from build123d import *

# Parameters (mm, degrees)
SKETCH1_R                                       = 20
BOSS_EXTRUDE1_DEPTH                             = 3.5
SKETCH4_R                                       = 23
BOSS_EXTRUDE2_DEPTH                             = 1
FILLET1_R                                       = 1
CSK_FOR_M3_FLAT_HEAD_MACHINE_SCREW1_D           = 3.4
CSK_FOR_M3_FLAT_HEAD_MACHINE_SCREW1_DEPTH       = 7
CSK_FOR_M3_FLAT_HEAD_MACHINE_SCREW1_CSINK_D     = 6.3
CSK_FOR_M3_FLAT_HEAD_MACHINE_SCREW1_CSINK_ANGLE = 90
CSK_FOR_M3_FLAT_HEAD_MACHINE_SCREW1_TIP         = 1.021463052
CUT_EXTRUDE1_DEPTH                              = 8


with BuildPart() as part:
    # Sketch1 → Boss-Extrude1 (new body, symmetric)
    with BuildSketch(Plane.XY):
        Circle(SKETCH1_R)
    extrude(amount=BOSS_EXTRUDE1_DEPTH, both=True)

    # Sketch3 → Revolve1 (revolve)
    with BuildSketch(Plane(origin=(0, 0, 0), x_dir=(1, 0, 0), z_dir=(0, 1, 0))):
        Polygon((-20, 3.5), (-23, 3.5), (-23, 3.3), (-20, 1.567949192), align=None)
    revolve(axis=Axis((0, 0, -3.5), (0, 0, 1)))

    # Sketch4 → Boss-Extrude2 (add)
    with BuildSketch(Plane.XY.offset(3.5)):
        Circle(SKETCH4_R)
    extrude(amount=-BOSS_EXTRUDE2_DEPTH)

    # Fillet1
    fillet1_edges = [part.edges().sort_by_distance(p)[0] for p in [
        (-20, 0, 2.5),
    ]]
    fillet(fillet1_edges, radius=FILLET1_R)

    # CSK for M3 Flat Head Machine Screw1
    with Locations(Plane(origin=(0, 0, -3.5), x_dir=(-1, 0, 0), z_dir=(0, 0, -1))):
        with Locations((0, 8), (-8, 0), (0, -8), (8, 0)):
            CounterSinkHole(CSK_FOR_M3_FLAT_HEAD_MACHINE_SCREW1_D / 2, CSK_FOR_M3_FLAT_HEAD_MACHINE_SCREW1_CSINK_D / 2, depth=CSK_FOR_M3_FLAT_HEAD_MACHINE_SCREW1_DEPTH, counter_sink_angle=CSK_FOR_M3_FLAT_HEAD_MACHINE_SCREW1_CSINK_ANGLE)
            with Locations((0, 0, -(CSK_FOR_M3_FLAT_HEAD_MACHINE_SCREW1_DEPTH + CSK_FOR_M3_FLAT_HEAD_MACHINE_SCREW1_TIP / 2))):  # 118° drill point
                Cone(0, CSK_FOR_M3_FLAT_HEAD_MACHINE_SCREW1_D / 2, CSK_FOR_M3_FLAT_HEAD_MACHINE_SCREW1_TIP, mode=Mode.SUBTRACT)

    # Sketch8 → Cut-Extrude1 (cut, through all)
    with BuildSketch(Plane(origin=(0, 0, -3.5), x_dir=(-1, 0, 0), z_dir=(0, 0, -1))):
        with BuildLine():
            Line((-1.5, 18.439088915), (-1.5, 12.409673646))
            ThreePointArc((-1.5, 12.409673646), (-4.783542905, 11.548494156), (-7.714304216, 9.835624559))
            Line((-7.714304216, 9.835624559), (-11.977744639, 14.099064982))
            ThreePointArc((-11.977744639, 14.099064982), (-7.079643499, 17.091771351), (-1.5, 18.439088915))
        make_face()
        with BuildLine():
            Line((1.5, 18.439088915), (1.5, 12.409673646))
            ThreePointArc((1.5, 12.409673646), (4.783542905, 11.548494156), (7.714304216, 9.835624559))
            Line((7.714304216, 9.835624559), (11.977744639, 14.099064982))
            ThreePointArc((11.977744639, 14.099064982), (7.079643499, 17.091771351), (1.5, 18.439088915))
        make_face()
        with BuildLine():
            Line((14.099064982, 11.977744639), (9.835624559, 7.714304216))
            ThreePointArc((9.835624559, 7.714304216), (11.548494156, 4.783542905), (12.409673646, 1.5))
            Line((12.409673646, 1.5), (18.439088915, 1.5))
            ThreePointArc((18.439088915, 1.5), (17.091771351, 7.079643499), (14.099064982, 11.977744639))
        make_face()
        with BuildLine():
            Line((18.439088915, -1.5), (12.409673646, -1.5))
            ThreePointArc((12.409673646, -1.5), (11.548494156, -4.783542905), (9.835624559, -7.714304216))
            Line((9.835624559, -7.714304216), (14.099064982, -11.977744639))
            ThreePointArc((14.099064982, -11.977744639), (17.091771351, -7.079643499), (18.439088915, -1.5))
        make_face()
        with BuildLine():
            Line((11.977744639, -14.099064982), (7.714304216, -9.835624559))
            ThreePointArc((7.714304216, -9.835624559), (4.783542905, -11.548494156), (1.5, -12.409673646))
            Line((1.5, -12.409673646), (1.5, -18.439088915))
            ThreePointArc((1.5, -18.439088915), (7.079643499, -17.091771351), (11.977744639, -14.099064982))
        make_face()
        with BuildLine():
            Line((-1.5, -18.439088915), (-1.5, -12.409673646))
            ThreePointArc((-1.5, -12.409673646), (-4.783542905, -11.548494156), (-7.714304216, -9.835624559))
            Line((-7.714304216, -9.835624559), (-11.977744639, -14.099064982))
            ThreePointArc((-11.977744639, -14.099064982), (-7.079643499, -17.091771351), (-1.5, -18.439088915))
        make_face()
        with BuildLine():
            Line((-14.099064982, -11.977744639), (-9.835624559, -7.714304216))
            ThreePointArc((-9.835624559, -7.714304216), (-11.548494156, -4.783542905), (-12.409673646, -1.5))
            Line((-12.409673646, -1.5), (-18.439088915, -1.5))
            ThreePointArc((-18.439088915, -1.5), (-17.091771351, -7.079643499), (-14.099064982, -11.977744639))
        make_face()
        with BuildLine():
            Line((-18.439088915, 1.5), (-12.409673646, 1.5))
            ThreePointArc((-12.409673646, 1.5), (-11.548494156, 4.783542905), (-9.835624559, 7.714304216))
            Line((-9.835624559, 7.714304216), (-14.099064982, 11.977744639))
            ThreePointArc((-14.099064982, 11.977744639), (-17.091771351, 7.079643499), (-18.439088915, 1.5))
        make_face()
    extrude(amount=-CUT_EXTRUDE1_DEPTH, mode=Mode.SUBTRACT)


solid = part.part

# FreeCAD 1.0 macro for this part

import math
import FreeCAD as App
import Part
import Sketcher
from FreeCAD import Vector
Q = App.Units.Quantity


def edges_at(feature, points):
    """Names of the edges that pass closest to the given points."""
    edges = feature.Shape.Edges
    near = lambda p: min(range(len(edges)), key=lambda i: edges[i].distToShape(Part.Vertex(*p))[0])
    return sorted({f"Edge{near(p) + 1}" for p in points})


def add_polygon(sketch, points):
    """Adds a closed chain of lines whose ends are joined by coincident constraints."""
    first, n = sketch.GeometryCount, len(points)
    for a, b in zip(points, points[1:] + points[:1]):
        sketch.addGeometry(Part.LineSegment(App.Vector(*a, 0), App.Vector(*b, 0)), False)
    for i in range(n):
        sketch.addConstraint(Sketcher.Constraint("Coincident", first + i, 2, first + (i + 1) % n, 1))

doc = App.newDocument("Part")
body = doc.addObject("PartDesign::Body", "Body")

# Sketch on XY plane
sketch1 = doc.addObject("Sketcher::SketchObject", "Sketch")
body.addObject(sketch1)
sketch1.AttachmentSupport = (doc.XY_Plane, [""])
sketch1.MapMode = "FlatFace"
sketch1.addGeometry(Part.Circle(Vector(0, 0, 0), Vector(0, 0, 1), 20), False)
sketch1.addConstraint(Sketcher.Constraint("Coincident", 0, 3, -1, 1))
sketch1.addConstraint(Sketcher.Constraint("Diameter", 0, Q("40 mm")))
pad1 = doc.addObject("PartDesign::Pad", "Pad")
body.addObject(pad1)
pad1.Profile = sketch1
pad1.Length = 7
pad1.Midplane = True

# Sketch on XZ plane
sketch2 = doc.addObject("Sketcher::SketchObject", "Sketch001")
body.addObject(sketch2)
sketch2.AttachmentSupport = (doc.XZ_Plane, [""])
sketch2.MapMode = "FlatFace"
add_polygon(sketch2, [(-20, -3.5), (-23, -3.5), (-23, -3.3), (-20, -1.567949)])  # lines 0-3
sketch2.addConstraint(Sketcher.Constraint("Horizontal", 0))
sketch2.addConstraint(Sketcher.Constraint("Vertical", 1))
sketch2.addConstraint(Sketcher.Constraint("Vertical", 3))
sketch2.addConstraint(Sketcher.Constraint("DistanceX", 0, 2, 0, 1, Q("3 mm")))
sketch2.addConstraint(Sketcher.Constraint("Angle", 2, Q("30 deg")))
sketch2.addConstraint(Sketcher.Constraint("DistanceY", 1, 1, 1, 2, Q("0.2 mm")))
sketch2.addConstraint(Sketcher.Constraint("DistanceX", 0, 2, -1, 1, Q("23 mm")))
sketch2.addConstraint(Sketcher.Constraint("DistanceY", 0, 2, -1, 1, Q("3.5 mm")))
revolution = doc.addObject("PartDesign::Revolution", "Revolution")
body.addObject(revolution)
revolution.Profile = sketch2
revolution.ReferenceAxis = (sketch2, ["V_Axis"])
revolution.Angle = 360

# Sketch on XY plane
sketch3 = doc.addObject("Sketcher::SketchObject", "Sketch002")
body.addObject(sketch3)
sketch3.AttachmentSupport = (doc.XY_Plane, [""])
sketch3.MapMode = "FlatFace"
sketch3.AttachmentOffset = App.Placement(Vector(0, 0, 3.5), App.Rotation())
sketch3.addGeometry(Part.Circle(Vector(0, 0, 0), Vector(0, 0, 1), 23), False)
sketch3.addConstraint(Sketcher.Constraint("Coincident", 0, 3, -1, 1))
sketch3.addConstraint(Sketcher.Constraint("Diameter", 0, Q("46 mm")))
pad2 = doc.addObject("PartDesign::Pad", "Pad001")
body.addObject(pad2)
pad2.Profile = sketch3
pad2.Length = 1
pad2.Reversed = True
doc.recompute()

fillet = doc.addObject("PartDesign::Fillet", "Fillet")
body.addObject(fillet)
fillet.Base = (pad2, edges_at(pad2, [(-20, 0, 2.5)]))
fillet.Radius = 1

# Sketch on XY plane
sketch4 = doc.addObject("Sketcher::SketchObject", "Sketch003")
body.addObject(sketch4)
sketch4.AttachmentSupport = (doc.XY_Plane, [""])
sketch4.MapMode = "FlatFace"
sketch4.AttachmentOffset = App.Placement(Vector(0, 0, -3.5), App.Rotation())
sketch4.addGeometry(Part.Circle(Vector(0, 8, 0), Vector(0, 0, 1), 1.7), False)
sketch4.addGeometry(Part.Circle(Vector(8, 0, 0), Vector(0, 0, 1), 1.7), False)
sketch4.addGeometry(Part.Circle(Vector(0, -8, 0), Vector(0, 0, 1), 1.7), False)
sketch4.addGeometry(Part.Circle(Vector(-8, 0, 0), Vector(0, 0, 1), 1.7), False)
sketch4.addConstraint(Sketcher.Constraint("Equal", 0, 1))
sketch4.addConstraint(Sketcher.Constraint("Equal", 1, 2))
sketch4.addConstraint(Sketcher.Constraint("Equal", 2, 3))
sketch4.addConstraint(Sketcher.Constraint("Symmetric", 0, 3, 2, 3, -1, 1))
sketch4.addConstraint(Sketcher.Constraint("Symmetric", 1, 3, 3, 3, -1, 1))
sketch4.addConstraint(Sketcher.Constraint("PointOnObject", 0, 3, -2))
sketch4.addConstraint(Sketcher.Constraint("PointOnObject", 1, 3, -1))
sketch4.addConstraint(Sketcher.Constraint("Diameter", 0, Q("3.4 mm")))
sketch4.addConstraint(Sketcher.Constraint("DistanceY", -1, 1, 0, 3, Q("8 mm")))
sketch4.addConstraint(Sketcher.Constraint("DistanceX", -1, 1, 1, 3, Q("8 mm")))
doc.recompute()
hole = doc.addObject("PartDesign::Hole", "Hole")
body.addObject(hole)
hole.Profile = sketch4
hole.ThreadType = "None"
hole.Diameter = 3.4
hole.DepthType = "Dimension"
hole.Depth = 7
hole.DrillPoint = "Angled"
hole.DrillPointAngle = 118
hole.HoleCutType = "Countersink"
hole.HoleCutDiameter = 6.3
hole.HoleCutCountersinkAngle = 90
hole.Reversed = True

# Sketch on XY plane
sketch5 = doc.addObject("Sketcher::SketchObject", "Sketch004")
body.addObject(sketch5)
sketch5.AttachmentSupport = (doc.XY_Plane, [""])
sketch5.MapMode = "FlatFace"
sketch5.AttachmentOffset = App.Placement(Vector(0, 0, -3.5), App.Rotation())
sketch5.addGeometry(Part.LineSegment(Vector(1.5, 12.409674, 0), Vector(1.5, 18.439089, 0)), False)
sketch5.addGeometry(Part.ArcOfCircle(Part.Circle(Vector(0, 0, 0), Vector(0, 0, 1), 18.5), math.radians(49.650709), math.radians(85.349291)), False)
sketch5.addGeometry(Part.LineSegment(Vector(11.977745, 14.099065, 0), Vector(7.714304, 9.835625, 0)), False)
sketch5.addGeometry(Part.ArcOfCircle(Part.Circle(Vector(0, 0, 0), Vector(0, 0, 1), 12.5), math.radians(51.892103), math.radians(83.107897)), False)
sketch5.addGeometry(Part.LineSegment(Vector(-1.5, 18.439089, 0), Vector(-1.5, 12.409674, 0)), False)
sketch5.addGeometry(Part.ArcOfCircle(Part.Circle(Vector(0, 0, 0), Vector(0, 0, 1), 12.5), math.radians(96.892103), math.radians(128.107897)), False)
sketch5.addGeometry(Part.LineSegment(Vector(-7.714304, 9.835625, 0), Vector(-11.977745, 14.099065, 0)), False)
sketch5.addGeometry(Part.ArcOfCircle(Part.Circle(Vector(0, 0, 0), Vector(0, 0, 1), 18.5), math.radians(94.650709), math.radians(130.349291)), False)
sketch5.addGeometry(Part.LineSegment(Vector(-14.099065, 11.977745, 0), Vector(-9.835625, 7.714304, 0)), False)
sketch5.addGeometry(Part.ArcOfCircle(Part.Circle(Vector(0, 0, 0), Vector(0, 0, 1), 12.5), math.radians(141.892103), math.radians(173.107897)), False)
sketch5.addGeometry(Part.LineSegment(Vector(-12.409674, 1.5, 0), Vector(-18.439089, 1.5, 0)), False)
sketch5.addGeometry(Part.ArcOfCircle(Part.Circle(Vector(0, 0, 0), Vector(0, 0, 1), 18.5), math.radians(139.650709), math.radians(175.349291)), False)
sketch5.addGeometry(Part.LineSegment(Vector(-18.439089, -1.5, 0), Vector(-12.409674, -1.5, 0)), False)
sketch5.addGeometry(Part.ArcOfCircle(Part.Circle(Vector(0, 0, 0), Vector(0, 0, 1), 12.5), math.radians(-173.107897), math.radians(-141.892103)), False)
sketch5.addGeometry(Part.LineSegment(Vector(-9.835625, -7.714304, 0), Vector(-14.099065, -11.977745, 0)), False)
sketch5.addGeometry(Part.ArcOfCircle(Part.Circle(Vector(0, 0, 0), Vector(0, 0, 1), 18.5), math.radians(-175.349291), math.radians(-139.650709)), False)
sketch5.addGeometry(Part.LineSegment(Vector(-11.977745, -14.099065, 0), Vector(-7.714304, -9.835625, 0)), False)
sketch5.addGeometry(Part.ArcOfCircle(Part.Circle(Vector(0, 0, 0), Vector(0, 0, 1), 12.5), math.radians(-128.107897), math.radians(-96.892103)), False)
sketch5.addGeometry(Part.LineSegment(Vector(-1.5, -12.409674, 0), Vector(-1.5, -18.439089, 0)), False)
sketch5.addGeometry(Part.ArcOfCircle(Part.Circle(Vector(0, 0, 0), Vector(0, 0, 1), 18.5), math.radians(-130.349291), math.radians(-94.650709)), False)
sketch5.addGeometry(Part.LineSegment(Vector(1.5, -18.439089, 0), Vector(1.5, -12.409674, 0)), False)
sketch5.addGeometry(Part.ArcOfCircle(Part.Circle(Vector(0, 0, 0), Vector(0, 0, 1), 12.5), math.radians(-83.107897), math.radians(-51.892103)), False)
sketch5.addGeometry(Part.LineSegment(Vector(7.714304, -9.835625, 0), Vector(11.977745, -14.099065, 0)), False)
sketch5.addGeometry(Part.ArcOfCircle(Part.Circle(Vector(0, 0, 0), Vector(0, 0, 1), 18.5), math.radians(-85.349291), math.radians(-49.650709)), False)
sketch5.addGeometry(Part.LineSegment(Vector(14.099065, -11.977745, 0), Vector(9.835625, -7.714304, 0)), False)
sketch5.addGeometry(Part.ArcOfCircle(Part.Circle(Vector(0, 0, 0), Vector(0, 0, 1), 12.5), math.radians(-38.107897), math.radians(-6.892103)), False)
sketch5.addGeometry(Part.LineSegment(Vector(12.409674, -1.5, 0), Vector(18.439089, -1.5, 0)), False)
sketch5.addGeometry(Part.ArcOfCircle(Part.Circle(Vector(0, 0, 0), Vector(0, 0, 1), 18.5), math.radians(-40.349291), math.radians(-4.650709)), False)
sketch5.addGeometry(Part.LineSegment(Vector(18.439089, 1.5, 0), Vector(12.409674, 1.5, 0)), False)
sketch5.addGeometry(Part.ArcOfCircle(Part.Circle(Vector(0, 0, 0), Vector(0, 0, 1), 12.5), math.radians(6.892103), math.radians(38.107897)), False)
sketch5.addGeometry(Part.LineSegment(Vector(9.835625, 7.714304, 0), Vector(14.099065, 11.977745, 0)), False)
sketch5.addGeometry(Part.ArcOfCircle(Part.Circle(Vector(0, 0, 0), Vector(0, 0, 1), 18.5), math.radians(4.650709), math.radians(40.349291)), False)
sketch5.addConstraint(Sketcher.Constraint("Coincident", 0, 2, 1, 2))
sketch5.addConstraint(Sketcher.Constraint("Coincident", 1, 1, 2, 1))
sketch5.addConstraint(Sketcher.Constraint("Coincident", 2, 2, 3, 1))
sketch5.addConstraint(Sketcher.Constraint("Coincident", 3, 2, 0, 1))
sketch5.addConstraint(Sketcher.Constraint("Coincident", 4, 2, 5, 1))
sketch5.addConstraint(Sketcher.Constraint("Coincident", 5, 2, 6, 1))
sketch5.addConstraint(Sketcher.Constraint("Coincident", 6, 2, 7, 2))
sketch5.addConstraint(Sketcher.Constraint("Coincident", 7, 1, 4, 1))
sketch5.addConstraint(Sketcher.Constraint("Coincident", 8, 2, 9, 1))
sketch5.addConstraint(Sketcher.Constraint("Coincident", 9, 2, 10, 1))
sketch5.addConstraint(Sketcher.Constraint("Coincident", 10, 2, 11, 2))
sketch5.addConstraint(Sketcher.Constraint("Coincident", 11, 1, 8, 1))
sketch5.addConstraint(Sketcher.Constraint("Coincident", 12, 2, 13, 1))
sketch5.addConstraint(Sketcher.Constraint("Coincident", 13, 2, 14, 1))
sketch5.addConstraint(Sketcher.Constraint("Coincident", 14, 2, 15, 2))
sketch5.addConstraint(Sketcher.Constraint("Coincident", 15, 1, 12, 1))
sketch5.addConstraint(Sketcher.Constraint("Coincident", 16, 2, 17, 1))
sketch5.addConstraint(Sketcher.Constraint("Coincident", 17, 2, 18, 1))
sketch5.addConstraint(Sketcher.Constraint("Coincident", 18, 2, 19, 2))
sketch5.addConstraint(Sketcher.Constraint("Coincident", 19, 1, 16, 1))
sketch5.addConstraint(Sketcher.Constraint("Coincident", 20, 2, 21, 1))
sketch5.addConstraint(Sketcher.Constraint("Coincident", 21, 2, 22, 1))
sketch5.addConstraint(Sketcher.Constraint("Coincident", 22, 2, 23, 2))
sketch5.addConstraint(Sketcher.Constraint("Coincident", 23, 1, 20, 1))
sketch5.addConstraint(Sketcher.Constraint("Coincident", 24, 2, 25, 1))
sketch5.addConstraint(Sketcher.Constraint("Coincident", 25, 2, 26, 1))
sketch5.addConstraint(Sketcher.Constraint("Coincident", 26, 2, 27, 2))
sketch5.addConstraint(Sketcher.Constraint("Coincident", 27, 1, 24, 1))
sketch5.addConstraint(Sketcher.Constraint("Coincident", 28, 2, 29, 1))
sketch5.addConstraint(Sketcher.Constraint("Coincident", 29, 2, 30, 1))
sketch5.addConstraint(Sketcher.Constraint("Coincident", 30, 2, 31, 2))
sketch5.addConstraint(Sketcher.Constraint("Coincident", 31, 1, 28, 1))
sketch5.addConstraint(Sketcher.Constraint("Vertical", 0))
sketch5.addConstraint(Sketcher.Constraint("Vertical", 4))
sketch5.addConstraint(Sketcher.Constraint("Horizontal", 10))
sketch5.addConstraint(Sketcher.Constraint("Horizontal", 12))
sketch5.addConstraint(Sketcher.Constraint("Vertical", 18))
sketch5.addConstraint(Sketcher.Constraint("Vertical", 20))
sketch5.addConstraint(Sketcher.Constraint("Horizontal", 26))
sketch5.addConstraint(Sketcher.Constraint("Horizontal", 28))
sketch5.addConstraint(Sketcher.Constraint("Coincident", 1, 3, -1, 1))
sketch5.addConstraint(Sketcher.Constraint("Coincident", 3, 3, -1, 1))
sketch5.addConstraint(Sketcher.Constraint("Coincident", 5, 3, -1, 1))
sketch5.addConstraint(Sketcher.Constraint("Coincident", 7, 3, -1, 1))
sketch5.addConstraint(Sketcher.Constraint("Coincident", 9, 3, -1, 1))
sketch5.addConstraint(Sketcher.Constraint("Coincident", 11, 3, -1, 1))
sketch5.addConstraint(Sketcher.Constraint("Coincident", 13, 3, -1, 1))
sketch5.addConstraint(Sketcher.Constraint("Coincident", 15, 3, -1, 1))
sketch5.addConstraint(Sketcher.Constraint("Coincident", 17, 3, -1, 1))
sketch5.addConstraint(Sketcher.Constraint("Coincident", 19, 3, -1, 1))
sketch5.addConstraint(Sketcher.Constraint("Coincident", 21, 3, -1, 1))
sketch5.addConstraint(Sketcher.Constraint("Coincident", 23, 3, -1, 1))
sketch5.addConstraint(Sketcher.Constraint("Coincident", 25, 3, -1, 1))
sketch5.addConstraint(Sketcher.Constraint("Coincident", 27, 3, -1, 1))
sketch5.addConstraint(Sketcher.Constraint("Coincident", 29, 3, -1, 1))
sketch5.addConstraint(Sketcher.Constraint("Coincident", 31, 3, -1, 1))
sketch5.addConstraint(Sketcher.Constraint("Equal", 3, 5))
sketch5.addConstraint(Sketcher.Constraint("Equal", 1, 7))
sketch5.addConstraint(Sketcher.Constraint("Equal", 5, 9))
sketch5.addConstraint(Sketcher.Constraint("Equal", 7, 11))
sketch5.addConstraint(Sketcher.Constraint("Equal", 9, 13))
sketch5.addConstraint(Sketcher.Constraint("Equal", 11, 15))
sketch5.addConstraint(Sketcher.Constraint("Equal", 13, 17))
sketch5.addConstraint(Sketcher.Constraint("Equal", 15, 19))
sketch5.addConstraint(Sketcher.Constraint("Equal", 17, 21))
sketch5.addConstraint(Sketcher.Constraint("Equal", 19, 23))
sketch5.addConstraint(Sketcher.Constraint("Equal", 21, 25))
sketch5.addConstraint(Sketcher.Constraint("Equal", 23, 27))
sketch5.addConstraint(Sketcher.Constraint("Equal", 25, 29))
sketch5.addConstraint(Sketcher.Constraint("Equal", 27, 31))
sketch5.addConstraint(Sketcher.Constraint("Perpendicular", 2, 6))
sketch5.addConstraint(Sketcher.Constraint("Parallel", 6, 8))
sketch5.addConstraint(Sketcher.Constraint("Perpendicular", 8, 14))
sketch5.addConstraint(Sketcher.Constraint("Parallel", 14, 16))
sketch5.addConstraint(Sketcher.Constraint("Perpendicular", 16, 22))
sketch5.addConstraint(Sketcher.Constraint("Parallel", 22, 24))
sketch5.addConstraint(Sketcher.Constraint("Perpendicular", 24, 30))
sketch5.addConstraint(Sketcher.Constraint("Horizontal", 3, 2, 4, 2))
sketch5.addConstraint(Sketcher.Constraint("Horizontal", 2, 2, 5, 2))
sketch5.addConstraint(Sketcher.Constraint("Horizontal", 1, 1, 6, 2))
sketch5.addConstraint(Sketcher.Constraint("Horizontal", 17, 2, 20, 2))
sketch5.addConstraint(Sketcher.Constraint("Horizontal", 16, 2, 21, 2))
sketch5.addConstraint(Sketcher.Constraint("Horizontal", 13, 2, 24, 2))
sketch5.addConstraint(Sketcher.Constraint("Horizontal", 15, 1, 25, 2))
sketch5.addConstraint(Sketcher.Constraint("Horizontal", 10, 2, 28, 2))
sketch5.addConstraint(Sketcher.Constraint("Horizontal", 8, 2, 29, 2))
sketch5.addConstraint(Sketcher.Constraint("Vertical", 9, 2, 12, 2))
sketch5.addConstraint(Sketcher.Constraint("Vertical", 8, 2, 13, 2))
sketch5.addConstraint(Sketcher.Constraint("Vertical", 5, 2, 16, 2))
sketch5.addConstraint(Sketcher.Constraint("Vertical", 7, 1, 17, 2))
sketch5.addConstraint(Sketcher.Constraint("Equal", 28, 0))
sketch5.addConstraint(Sketcher.Constraint("Equal", 6, 8))
sketch5.addConstraint(Sketcher.Constraint("Radius", 1, Q("18.5 mm")))
sketch5.addConstraint(Sketcher.Constraint("Radius", 3, Q("12.5 mm")))
sketch5.addConstraint(Sketcher.Constraint("DistanceX", 4, 2, 3, 2, Q("3 mm")))
sketch5.addConstraint(Sketcher.Constraint("DistanceY", 2, 2, 3, 2, Q("2.574049 mm")))
pocket1 = doc.addObject("PartDesign::Pocket", "Pocket")
body.addObject(pocket1)
pocket1.Profile = sketch5
pocket1.Type = "ThroughAll"
pocket1.Reversed = True

doc.recompute()
